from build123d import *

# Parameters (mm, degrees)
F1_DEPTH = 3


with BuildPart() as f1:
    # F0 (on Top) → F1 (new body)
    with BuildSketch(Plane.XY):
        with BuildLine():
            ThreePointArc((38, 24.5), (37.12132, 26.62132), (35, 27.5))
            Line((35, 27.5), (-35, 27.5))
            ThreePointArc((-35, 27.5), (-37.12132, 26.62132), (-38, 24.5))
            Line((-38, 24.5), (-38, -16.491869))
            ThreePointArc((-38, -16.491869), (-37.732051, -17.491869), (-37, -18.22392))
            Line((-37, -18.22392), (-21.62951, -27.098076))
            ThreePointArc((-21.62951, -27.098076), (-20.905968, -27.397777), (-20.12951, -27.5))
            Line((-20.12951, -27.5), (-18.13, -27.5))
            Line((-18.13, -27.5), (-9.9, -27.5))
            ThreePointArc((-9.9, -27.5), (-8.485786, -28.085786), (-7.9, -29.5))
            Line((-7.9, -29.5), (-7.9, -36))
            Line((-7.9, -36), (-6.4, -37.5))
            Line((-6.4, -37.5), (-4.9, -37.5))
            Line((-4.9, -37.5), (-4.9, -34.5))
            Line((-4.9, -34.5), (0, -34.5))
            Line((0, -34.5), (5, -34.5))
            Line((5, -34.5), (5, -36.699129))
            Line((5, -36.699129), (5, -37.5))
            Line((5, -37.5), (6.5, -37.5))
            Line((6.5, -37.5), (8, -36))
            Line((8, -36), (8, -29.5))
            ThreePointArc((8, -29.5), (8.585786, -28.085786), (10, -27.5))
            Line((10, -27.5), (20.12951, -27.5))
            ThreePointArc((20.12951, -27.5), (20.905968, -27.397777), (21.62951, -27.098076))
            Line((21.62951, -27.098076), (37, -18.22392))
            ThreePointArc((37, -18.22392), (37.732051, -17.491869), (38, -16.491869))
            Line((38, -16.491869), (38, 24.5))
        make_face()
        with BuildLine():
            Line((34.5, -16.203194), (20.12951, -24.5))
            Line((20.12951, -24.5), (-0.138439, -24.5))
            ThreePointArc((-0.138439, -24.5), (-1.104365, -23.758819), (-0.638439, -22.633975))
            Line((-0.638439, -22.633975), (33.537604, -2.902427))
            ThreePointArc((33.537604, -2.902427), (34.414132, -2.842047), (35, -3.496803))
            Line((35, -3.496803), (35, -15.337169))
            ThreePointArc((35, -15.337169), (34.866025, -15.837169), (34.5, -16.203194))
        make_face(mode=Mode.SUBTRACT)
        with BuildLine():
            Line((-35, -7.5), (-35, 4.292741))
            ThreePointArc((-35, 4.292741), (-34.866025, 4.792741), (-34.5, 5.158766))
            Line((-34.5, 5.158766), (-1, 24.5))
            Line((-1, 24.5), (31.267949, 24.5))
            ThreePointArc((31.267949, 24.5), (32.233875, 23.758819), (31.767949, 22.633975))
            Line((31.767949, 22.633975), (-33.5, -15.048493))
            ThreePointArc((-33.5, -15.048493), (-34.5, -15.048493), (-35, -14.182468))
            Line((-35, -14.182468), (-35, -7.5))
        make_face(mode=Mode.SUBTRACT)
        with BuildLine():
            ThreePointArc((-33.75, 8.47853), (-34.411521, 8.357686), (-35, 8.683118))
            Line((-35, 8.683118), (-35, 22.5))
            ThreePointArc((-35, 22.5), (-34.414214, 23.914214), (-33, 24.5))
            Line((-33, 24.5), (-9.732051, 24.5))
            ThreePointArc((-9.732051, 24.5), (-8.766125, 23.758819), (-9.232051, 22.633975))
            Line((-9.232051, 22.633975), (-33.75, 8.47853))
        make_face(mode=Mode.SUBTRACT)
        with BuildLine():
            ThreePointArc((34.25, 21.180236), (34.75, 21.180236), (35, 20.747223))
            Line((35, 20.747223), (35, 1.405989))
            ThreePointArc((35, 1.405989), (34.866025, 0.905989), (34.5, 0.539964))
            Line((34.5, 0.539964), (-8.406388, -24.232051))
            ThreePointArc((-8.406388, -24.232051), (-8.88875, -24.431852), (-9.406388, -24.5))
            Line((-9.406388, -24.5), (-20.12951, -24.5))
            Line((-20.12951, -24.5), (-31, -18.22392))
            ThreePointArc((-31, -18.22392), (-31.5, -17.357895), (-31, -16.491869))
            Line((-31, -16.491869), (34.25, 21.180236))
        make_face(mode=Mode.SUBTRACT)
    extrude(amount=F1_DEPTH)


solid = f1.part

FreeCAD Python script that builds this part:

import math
import FreeCAD as App
import Part
import Sketcher
from FreeCAD import Vector

doc = App.newDocument("Part")
body = doc.addObject("PartDesign::Body", "Body")

# Sketch on XY plane
sketch1 = body.newObject("Sketcher::SketchObject", "Sketch")
sketch1.AttachmentSupport = (doc.getObject("XY_Plane"), [""])
sketch1.MapMode = "FlatFace"
sketch1.addGeometry([
    Part.ArcOfCircle(Part.Circle(Vector(35, 24.5, 0), Vector(0, 0, 1), 3), math.radians(0), math.radians(90)),  # 0
    Part.LineSegment(Vector(35, 27.5, 0), Vector(-35, 27.5, 0)),  # 1
    Part.ArcOfCircle(Part.Circle(Vector(-35, 24.5, 0), Vector(0, 0, 1), 3), math.radians(90), math.radians(180)),  # 2
    Part.LineSegment(Vector(-38, 24.5, 0), Vector(-38, -16.5, 0)),  # 3
    Part.ArcOfCircle(Part.Circle(Vector(-36, -16.5, 0), Vector(0, 0, 1), 2), math.radians(180), math.radians(240)),  # 4
    Part.LineSegment(Vector(-37, -18.2, 0), Vector(-21.6, -27.1, 0)),  # 5
    Part.ArcOfCircle(Part.Circle(Vector(-20.1, -24.5, 0), Vector(0, 0, 1), 3), math.radians(-120), math.radians(-90)),  # 6
    Part.LineSegment(Vector(-20.1, -27.5, 0), Vector(-9.9, -27.5, 0)),  # 7
    Part.ArcOfCircle(Part.Circle(Vector(-9.9, -29.5, 0), Vector(0, 0, 1), 2), math.radians(0), math.radians(90)),  # 8
    Part.LineSegment(Vector(-7.9, -29.5, 0), Vector(-7.9, -36, 0)),  # 9
    Part.LineSegment(Vector(-7.9, -36, 0), Vector(-6.4, -37.5, 0)),  # 10
    Part.LineSegment(Vector(-6.4, -37.5, 0), Vector(-4.9, -37.5, 0)),  # 11
    Part.LineSegment(Vector(-4.9, -37.5, 0), Vector(-4.9, -34.5, 0)),  # 12
    Part.LineSegment(Vector(-4.9, -34.5, 0), Vector(5, -34.5, 0)),  # 13
    Part.LineSegment(Vector(5, -34.5, 0), Vector(5, -37.5, 0)),  # 14
    Part.LineSegment(Vector(5, -37.5, 0), Vector(6.5, -37.5, 0)),  # 15
    Part.LineSegment(Vector(6.5, -37.5, 0), Vector(8, -36, 0)),  # 16
    Part.LineSegment(Vector(8, -36, 0), Vector(8, -29.5, 0)),  # 17
    Part.ArcOfCircle(Part.Circle(Vector(10, -29.5, 0), Vector(0, 0, 1), 2), math.radians(90), math.radians(180)),  # 18
    Part.LineSegment(Vector(10, -27.5, 0), Vector(20.1, -27.5, 0)),  # 19
    Part.ArcOfCircle(Part.Circle(Vector(20.1, -24.5, 0), Vector(0, 0, 1), 3), math.radians(-90), math.radians(-60)),  # 20
    Part.LineSegment(Vector(21.6, -27.1, 0), Vector(37, -18.2, 0)),  # 21
    Part.ArcOfCircle(Part.Circle(Vector(36, -16.5, 0), Vector(0, 0, 1), 2), math.radians(-60), math.radians(0)),  # 22
    Part.LineSegment(Vector(38, -16.5, 0), Vector(38, 24.5, 0)),  # 23
    Part.ArcOfCircle(Part.Circle(Vector(34, -15.3, 0), Vector(0, 0, 1), 1), math.radians(-60), math.radians(0)),  # 24
    Part.LineSegment(Vector(34.5, -16.2, 0), Vector(20.1, -24.5, 0)),  # 25
    Part.LineSegment(Vector(20.1, -24.5, 0), Vector(-0.1, -24.5, 0)),  # 26
    Part.ArcOfCircle(Part.Circle(Vector(-0.1, -23.5, 0), Vector(0, 0, 1), 1), math.radians(120), math.radians(270)),  # 27
    Part.LineSegment(Vector(-0.6, -22.6, 0), Vector(33.5, -2.9, 0)),  # 28
    Part.ArcOfCircle(Part.Circle(Vector(34, -3.8, 0), Vector(0, 0, 1), 1), math.radians(16), math.radians(120)),  # 29
    Part.LineSegment(Vector(35, -3.5, 0), Vector(35, -15.3, 0)),  # 30
    Part.LineSegment(Vector(-31, -16.5, 0), Vector(34.2, 21.2, 0)),  # 31
    Part.ArcOfCircle(Part.Circle(Vector(34.5, 20.7, 0), Vector(0, 0, 1), 0.5), math.radians(0), math.radians(120)),  # 32
    Part.LineSegment(Vector(35, 20.7, 0), Vector(35, 1.4, 0)),  # 33
    Part.ArcOfCircle(Part.Circle(Vector(34, 1.4, 0), Vector(0, 0, 1), 1), math.radians(-60), math.radians(0)),  # 34
    Part.LineSegment(Vector(34.5, 0.5, 0), Vector(-8.4, -24.2, 0)),  # 35
    Part.ArcOfCircle(Part.Circle(Vector(-9.4, -22.5, 0), Vector(0, 0, 1), 2), math.radians(-90), math.radians(-60)),  # 36
    Part.LineSegment(Vector(-9.4, -24.5, 0), Vector(-20.1, -24.5, 0)),  # 37
    Part.LineSegment(Vector(-20.1, -24.5, 0), Vector(-31, -18.2, 0)),  # 38
    Part.ArcOfCircle(Part.Circle(Vector(-30.5, -17.4, 0), Vector(0, 0, 1), 1), math.radians(120), math.radians(240)),  # 39
    Part.LineSegment(Vector(-35, -14.2, 0), Vector(-35, 4.3, 0)),  # 40
    Part.ArcOfCircle(Part.Circle(Vector(-34, 4.3, 0), Vector(0, 0, 1), 1), math.radians(120), math.radians(180)),  # 41
    Part.LineSegment(Vector(-34.5, 5.2, 0), Vector(-1, 24.5, 0)),  # 42
    Part.LineSegment(Vector(-1, 24.5, 0), Vector(31.3, 24.5, 0)),  # 43
    Part.ArcOfCircle(Part.Circle(Vector(31.3, 23.5, 0), Vector(0, 0, 1), 1), math.radians(-60), math.radians(90)),  # 44
    Part.LineSegment(Vector(31.8, 22.6, 0), Vector(-33.5, -15, 0)),  # 45
    Part.ArcOfCircle(Part.Circle(Vector(-34, -14.2, 0), Vector(0, 0, 1), 1), math.radians(-180), math.radians(-60)),  # 46
    Part.LineSegment(Vector(-9.2, 22.6, 0), Vector(-33.8, 8.5, 0)),  # 47
    Part.ArcOfCircle(Part.Circle(Vector(-34.2, 9.3, 0), Vector(0, 0, 1), 1), math.radians(-139), math.radians(-60)),  # 48
    Part.LineSegment(Vector(-35, 8.7, 0), Vector(-35, 22.5, 0)),  # 49
    Part.ArcOfCircle(Part.Circle(Vector(-33, 22.5, 0), Vector(0, 0, 1), 2), math.radians(90), math.radians(180)),  # 50
    Part.LineSegment(Vector(-33, 24.5, 0), Vector(-9.7, 24.5, 0)),  # 51
    Part.ArcOfCircle(Part.Circle(Vector(-9.7, 23.5, 0), Vector(0, 0, 1), 1), math.radians(-60), math.radians(90)),  # 52
], False)
sketch1.addConstraint([
    Sketcher.Constraint("Tangent", 0, 2, 1, 1),
    Sketcher.Constraint("Tangent", 1, 2, 2, 1),
    Sketcher.Constraint("Tangent", 2, 2, 3, 1),
    Sketcher.Constraint("Tangent", 3, 2, 4, 1),
    Sketcher.Constraint("Tangent", 4, 2, 5, 1),
    Sketcher.Constraint("Tangent", 5, 2, 6, 1),
    Sketcher.Constraint("Tangent", 6, 2, 7, 1),
    Sketcher.Constraint("Tangent", 7, 2, 8, 2),
    Sketcher.Constraint("Tangent", 8, 1, 9, 1),
    Sketcher.Constraint("Coincident", 9, 2, 10, 1),
    Sketcher.Constraint("Coincident", 10, 2, 11, 1),
    Sketcher.Constraint("Coincident", 11, 2, 12, 1),
    Sketcher.Constraint("Coincident", 12, 2, 13, 1),
    Sketcher.Constraint("Coincident", 13, 2, 14, 1),
    Sketcher.Constraint("Coincident", 14, 2, 15, 1),
    Sketcher.Constraint("Coincident", 15, 2, 16, 1),
    Sketcher.Constraint("Coincident", 16, 2, 17, 1),
    Sketcher.Constraint("Tangent", 17, 2, 18, 2),
    Sketcher.Constraint("Tangent", 18, 1, 19, 1),
    Sketcher.Constraint("Tangent", 19, 2, 20, 1),
    Sketcher.Constraint("Tangent", 20, 2, 21, 1),
    Sketcher.Constraint("Tangent", 21, 2, 22, 1),
    Sketcher.Constraint("Tangent", 22, 2, 23, 1),
    Sketcher.Constraint("Tangent", 23, 2, 0, 1),
    Sketcher.Constraint("Tangent", 24, 1, 25, 1),
    Sketcher.Constraint("Coincident", 25, 2, 26, 1),
    Sketcher.Constraint("Tangent", 26, 2, 27, 2),
    Sketcher.Constraint("Tangent", 27, 1, 28, 1),
    Sketcher.Constraint("Tangent", 28, 2, 29, 2),
    Sketcher.Constraint("Coincident", 29, 1, 30, 1),
    Sketcher.Constraint("Tangent", 30, 2, 24, 2),
    Sketcher.Constraint("Tangent", 31, 2, 32, 2),
    Sketcher.Constraint("Tangent", 32, 1, 33, 1),
    Sketcher.Constraint("Tangent", 33, 2, 34, 2),
    Sketcher.Constraint("Tangent", 34, 1, 35, 1),
    Sketcher.Constraint("Tangent", 35, 2, 36, 2),
    Sketcher.Constraint("Tangent", 36, 1, 37, 1),
    Sketcher.Constraint("Coincident", 37, 2, 38, 1),
    Sketcher.Constraint("Tangent", 38, 2, 39, 2),
    Sketcher.Constraint("Tangent", 39, 1, 31, 1),
    Sketcher.Constraint("Tangent", 40, 2, 41, 2),
    Sketcher.Constraint("Tangent", 41, 1, 42, 1),
    Sketcher.Constraint("Coincident", 42, 2, 43, 1),
    Sketcher.Constraint("Tangent", 43, 2, 44, 2),
    Sketcher.Constraint("Tangent", 44, 1, 45, 1),
    Sketcher.Constraint("Tangent", 45, 2, 46, 2),
    Sketcher.Constraint("Tangent", 46, 1, 40, 1),
    Sketcher.Constraint("Tangent", 47, 2, 48, 2),
    Sketcher.Constraint("Coincident", 48, 1, 49, 1),
    Sketcher.Constraint("Tangent", 49, 2, 50, 2),
    Sketcher.Constraint("Tangent", 50, 1, 51, 1),
    Sketcher.Constraint("Tangent", 51, 2, 52, 2),
    Sketcher.Constraint("Tangent", 52, 1, 47, 1),
    Sketcher.Constraint("Horizontal", 1),
    Sketcher.Constraint("Vertical", 3),
    Sketcher.Constraint("Horizontal", 7),
    Sketcher.Constraint("Vertical", 9),
    Sketcher.Constraint("Horizontal", 11),
    Sketcher.Constraint("Vertical", 12),
    Sketcher.Constraint("Horizontal", 13),
    Sketcher.Constraint("Vertical", 14),
    Sketcher.Constraint("Horizontal", 15),
    Sketcher.Constraint("Vertical", 17),
    Sketcher.Constraint("Horizontal", 19),
    Sketcher.Constraint("Vertical", 23),
    Sketcher.Constraint("Horizontal", 26),
    Sketcher.Constraint("Vertical", 30),
    Sketcher.Constraint("Vertical", 33),
    Sketcher.Constraint("Horizontal", 37),
    Sketcher.Constraint("Vertical", 40),
    Sketcher.Constraint("Horizontal", 43),
    Sketcher.Constraint("Vertical", 49),
    Sketcher.Constraint("Horizontal", 51),
    Sketcher.Constraint("Coincident", 25, 2, 20, 3),
    Sketcher.Constraint("Coincident", 37, 2, 6, 3),
    Sketcher.Constraint("Equal", 0, 2),
    Sketcher.Constraint("Equal", 4, 8),
    Sketcher.Constraint("Equal", 8, 18),
    Sketcher.Constraint("Equal", 6, 20),
    Sketcher.Constraint("Equal", 18, 22),
    Sketcher.Constraint("Equal", 24, 27),
    Sketcher.Constraint("Equal", 27, 29),
    Sketcher.Constraint("Equal", 29, 34),
    Sketcher.Constraint("Equal", 34, 39),
    Sketcher.Constraint("Equal", 39, 41),
    Sketcher.Constraint("Equal", 41, 44),
    Sketcher.Constraint("Equal", 44, 46),
    Sketcher.Constraint("Equal", 46, 48),
    Sketcher.Constraint("Equal", 22, 50),
    Sketcher.Constraint("Equal", 48, 52),
    Sketcher.Constraint("Symmetric", 6, 3, 20, 3, -2),
    Sketcher.Constraint("Symmetric", 4, 3, 22, 3, -2),
    Sketcher.Constraint("Perpendicular", 10, 16),
    Sketcher.Constraint("Parallel", 21, 25),
    Sketcher.Constraint("Parallel", 25, 28),
    Sketcher.Constraint("Parallel", 28, 31),
    Sketcher.Constraint("Parallel", 31, 35),
    Sketcher.Constraint("Parallel", 5, 38),
    Sketcher.Constraint("Parallel", 35, 42),
    Sketcher.Constraint("Parallel", 42, 45),
    Sketcher.Constraint("Parallel", 45, 47),
    Sketcher.Constraint("Horizontal", 44, 3, 52, 3),
    Sketcher.Constraint("Horizontal", 11, 2, 14, 2),
    Sketcher.Constraint("Horizontal", 9, 2, 16, 2),
    Sketcher.Constraint("Horizontal", 21, 2, 38, 2),
    Sketcher.Constraint("Horizontal", 22, 2, 39, 1),
    Sketcher.Constraint("Horizontal", 23, 2, 42, 2),
    Sketcher.Constraint("Vertical", 24, 3, 34, 3),
    Sketcher.Constraint("Vertical", 32, 3, 24, 1),
    Sketcher.Constraint("Vertical", 0, 2, 29, 1),
    Sketcher.Constraint("Vertical", 1, 2, 40, 2),
    Sketcher.Constraint("Vertical", 46, 1, 48, 1),
    Sketcher.Constraint("Equal", 11, 15),
    Sketcher.Constraint("Equal", 10, 16),
    Sketcher.Constraint("Radius", 0, 3.000001),
    Sketcher.Constraint("Radius", 4, 2.0),
    Sketcher.Constraint("Radius", 32, 0.5),
    Sketcher.Constraint("DistanceX", 1, 2, 1, 1, 70.0),
    Sketcher.Constraint("DistanceY", 12, 1, 12, 2, 3.0),
    Sketcher.Constraint("DistanceX", 11, 1, 11, 2, 1.5),
    Sketcher.Constraint("DistanceX", 13, 1, 13, 2, 9.9),
    Sketcher.Constraint("DistanceY", 9, 2, 9, 1, 6.5),
    Sketcher.Constraint("DistanceX", -1, 1, 18, 3, 9.999999),
    Sketcher.Constraint("DistanceY", 9, 2, -1, 1, 36.0),
    Sketcher.Constraint("DistanceX", -1, 1, 13, 2, 5.0),
    Sketcher.Constraint("DistanceX", 38, 2, -1, 1, 31.0),
    Sketcher.Constraint("DistanceX", 42, 2, -1, 1, 1.0),
    Sketcher.Constraint("DistanceY", -1, 1, 0, 3, 24.499999),
    Sketcher.Constraint("DistanceX", 48, 3, -1, 1, 34.25),
    Sketcher.Constraint("Radius", 36, 1.999994),
    Sketcher.Constraint("DistanceX", 7, 1, 7, 2, 10.22951),
    Sketcher.Constraint("DistanceX", 26, 2, 26, 1, 20.267949),
    Sketcher.Constraint("DistanceX", 43, 1, 43, 2, 32.267949),
    Sketcher.Constraint("DistanceX", 51, 1, 51, 2, 23.267949),
    Sketcher.Constraint("Distance", 35, 49.544029),
    Sketcher.Constraint("DistanceY", 30, 2, 30, 1, 11.840366),
])
pad1 = body.newObject("PartDesign::Pad", "Pad")
pad1.Profile = sketch1
pad1.Length = 3

doc.recompute()
